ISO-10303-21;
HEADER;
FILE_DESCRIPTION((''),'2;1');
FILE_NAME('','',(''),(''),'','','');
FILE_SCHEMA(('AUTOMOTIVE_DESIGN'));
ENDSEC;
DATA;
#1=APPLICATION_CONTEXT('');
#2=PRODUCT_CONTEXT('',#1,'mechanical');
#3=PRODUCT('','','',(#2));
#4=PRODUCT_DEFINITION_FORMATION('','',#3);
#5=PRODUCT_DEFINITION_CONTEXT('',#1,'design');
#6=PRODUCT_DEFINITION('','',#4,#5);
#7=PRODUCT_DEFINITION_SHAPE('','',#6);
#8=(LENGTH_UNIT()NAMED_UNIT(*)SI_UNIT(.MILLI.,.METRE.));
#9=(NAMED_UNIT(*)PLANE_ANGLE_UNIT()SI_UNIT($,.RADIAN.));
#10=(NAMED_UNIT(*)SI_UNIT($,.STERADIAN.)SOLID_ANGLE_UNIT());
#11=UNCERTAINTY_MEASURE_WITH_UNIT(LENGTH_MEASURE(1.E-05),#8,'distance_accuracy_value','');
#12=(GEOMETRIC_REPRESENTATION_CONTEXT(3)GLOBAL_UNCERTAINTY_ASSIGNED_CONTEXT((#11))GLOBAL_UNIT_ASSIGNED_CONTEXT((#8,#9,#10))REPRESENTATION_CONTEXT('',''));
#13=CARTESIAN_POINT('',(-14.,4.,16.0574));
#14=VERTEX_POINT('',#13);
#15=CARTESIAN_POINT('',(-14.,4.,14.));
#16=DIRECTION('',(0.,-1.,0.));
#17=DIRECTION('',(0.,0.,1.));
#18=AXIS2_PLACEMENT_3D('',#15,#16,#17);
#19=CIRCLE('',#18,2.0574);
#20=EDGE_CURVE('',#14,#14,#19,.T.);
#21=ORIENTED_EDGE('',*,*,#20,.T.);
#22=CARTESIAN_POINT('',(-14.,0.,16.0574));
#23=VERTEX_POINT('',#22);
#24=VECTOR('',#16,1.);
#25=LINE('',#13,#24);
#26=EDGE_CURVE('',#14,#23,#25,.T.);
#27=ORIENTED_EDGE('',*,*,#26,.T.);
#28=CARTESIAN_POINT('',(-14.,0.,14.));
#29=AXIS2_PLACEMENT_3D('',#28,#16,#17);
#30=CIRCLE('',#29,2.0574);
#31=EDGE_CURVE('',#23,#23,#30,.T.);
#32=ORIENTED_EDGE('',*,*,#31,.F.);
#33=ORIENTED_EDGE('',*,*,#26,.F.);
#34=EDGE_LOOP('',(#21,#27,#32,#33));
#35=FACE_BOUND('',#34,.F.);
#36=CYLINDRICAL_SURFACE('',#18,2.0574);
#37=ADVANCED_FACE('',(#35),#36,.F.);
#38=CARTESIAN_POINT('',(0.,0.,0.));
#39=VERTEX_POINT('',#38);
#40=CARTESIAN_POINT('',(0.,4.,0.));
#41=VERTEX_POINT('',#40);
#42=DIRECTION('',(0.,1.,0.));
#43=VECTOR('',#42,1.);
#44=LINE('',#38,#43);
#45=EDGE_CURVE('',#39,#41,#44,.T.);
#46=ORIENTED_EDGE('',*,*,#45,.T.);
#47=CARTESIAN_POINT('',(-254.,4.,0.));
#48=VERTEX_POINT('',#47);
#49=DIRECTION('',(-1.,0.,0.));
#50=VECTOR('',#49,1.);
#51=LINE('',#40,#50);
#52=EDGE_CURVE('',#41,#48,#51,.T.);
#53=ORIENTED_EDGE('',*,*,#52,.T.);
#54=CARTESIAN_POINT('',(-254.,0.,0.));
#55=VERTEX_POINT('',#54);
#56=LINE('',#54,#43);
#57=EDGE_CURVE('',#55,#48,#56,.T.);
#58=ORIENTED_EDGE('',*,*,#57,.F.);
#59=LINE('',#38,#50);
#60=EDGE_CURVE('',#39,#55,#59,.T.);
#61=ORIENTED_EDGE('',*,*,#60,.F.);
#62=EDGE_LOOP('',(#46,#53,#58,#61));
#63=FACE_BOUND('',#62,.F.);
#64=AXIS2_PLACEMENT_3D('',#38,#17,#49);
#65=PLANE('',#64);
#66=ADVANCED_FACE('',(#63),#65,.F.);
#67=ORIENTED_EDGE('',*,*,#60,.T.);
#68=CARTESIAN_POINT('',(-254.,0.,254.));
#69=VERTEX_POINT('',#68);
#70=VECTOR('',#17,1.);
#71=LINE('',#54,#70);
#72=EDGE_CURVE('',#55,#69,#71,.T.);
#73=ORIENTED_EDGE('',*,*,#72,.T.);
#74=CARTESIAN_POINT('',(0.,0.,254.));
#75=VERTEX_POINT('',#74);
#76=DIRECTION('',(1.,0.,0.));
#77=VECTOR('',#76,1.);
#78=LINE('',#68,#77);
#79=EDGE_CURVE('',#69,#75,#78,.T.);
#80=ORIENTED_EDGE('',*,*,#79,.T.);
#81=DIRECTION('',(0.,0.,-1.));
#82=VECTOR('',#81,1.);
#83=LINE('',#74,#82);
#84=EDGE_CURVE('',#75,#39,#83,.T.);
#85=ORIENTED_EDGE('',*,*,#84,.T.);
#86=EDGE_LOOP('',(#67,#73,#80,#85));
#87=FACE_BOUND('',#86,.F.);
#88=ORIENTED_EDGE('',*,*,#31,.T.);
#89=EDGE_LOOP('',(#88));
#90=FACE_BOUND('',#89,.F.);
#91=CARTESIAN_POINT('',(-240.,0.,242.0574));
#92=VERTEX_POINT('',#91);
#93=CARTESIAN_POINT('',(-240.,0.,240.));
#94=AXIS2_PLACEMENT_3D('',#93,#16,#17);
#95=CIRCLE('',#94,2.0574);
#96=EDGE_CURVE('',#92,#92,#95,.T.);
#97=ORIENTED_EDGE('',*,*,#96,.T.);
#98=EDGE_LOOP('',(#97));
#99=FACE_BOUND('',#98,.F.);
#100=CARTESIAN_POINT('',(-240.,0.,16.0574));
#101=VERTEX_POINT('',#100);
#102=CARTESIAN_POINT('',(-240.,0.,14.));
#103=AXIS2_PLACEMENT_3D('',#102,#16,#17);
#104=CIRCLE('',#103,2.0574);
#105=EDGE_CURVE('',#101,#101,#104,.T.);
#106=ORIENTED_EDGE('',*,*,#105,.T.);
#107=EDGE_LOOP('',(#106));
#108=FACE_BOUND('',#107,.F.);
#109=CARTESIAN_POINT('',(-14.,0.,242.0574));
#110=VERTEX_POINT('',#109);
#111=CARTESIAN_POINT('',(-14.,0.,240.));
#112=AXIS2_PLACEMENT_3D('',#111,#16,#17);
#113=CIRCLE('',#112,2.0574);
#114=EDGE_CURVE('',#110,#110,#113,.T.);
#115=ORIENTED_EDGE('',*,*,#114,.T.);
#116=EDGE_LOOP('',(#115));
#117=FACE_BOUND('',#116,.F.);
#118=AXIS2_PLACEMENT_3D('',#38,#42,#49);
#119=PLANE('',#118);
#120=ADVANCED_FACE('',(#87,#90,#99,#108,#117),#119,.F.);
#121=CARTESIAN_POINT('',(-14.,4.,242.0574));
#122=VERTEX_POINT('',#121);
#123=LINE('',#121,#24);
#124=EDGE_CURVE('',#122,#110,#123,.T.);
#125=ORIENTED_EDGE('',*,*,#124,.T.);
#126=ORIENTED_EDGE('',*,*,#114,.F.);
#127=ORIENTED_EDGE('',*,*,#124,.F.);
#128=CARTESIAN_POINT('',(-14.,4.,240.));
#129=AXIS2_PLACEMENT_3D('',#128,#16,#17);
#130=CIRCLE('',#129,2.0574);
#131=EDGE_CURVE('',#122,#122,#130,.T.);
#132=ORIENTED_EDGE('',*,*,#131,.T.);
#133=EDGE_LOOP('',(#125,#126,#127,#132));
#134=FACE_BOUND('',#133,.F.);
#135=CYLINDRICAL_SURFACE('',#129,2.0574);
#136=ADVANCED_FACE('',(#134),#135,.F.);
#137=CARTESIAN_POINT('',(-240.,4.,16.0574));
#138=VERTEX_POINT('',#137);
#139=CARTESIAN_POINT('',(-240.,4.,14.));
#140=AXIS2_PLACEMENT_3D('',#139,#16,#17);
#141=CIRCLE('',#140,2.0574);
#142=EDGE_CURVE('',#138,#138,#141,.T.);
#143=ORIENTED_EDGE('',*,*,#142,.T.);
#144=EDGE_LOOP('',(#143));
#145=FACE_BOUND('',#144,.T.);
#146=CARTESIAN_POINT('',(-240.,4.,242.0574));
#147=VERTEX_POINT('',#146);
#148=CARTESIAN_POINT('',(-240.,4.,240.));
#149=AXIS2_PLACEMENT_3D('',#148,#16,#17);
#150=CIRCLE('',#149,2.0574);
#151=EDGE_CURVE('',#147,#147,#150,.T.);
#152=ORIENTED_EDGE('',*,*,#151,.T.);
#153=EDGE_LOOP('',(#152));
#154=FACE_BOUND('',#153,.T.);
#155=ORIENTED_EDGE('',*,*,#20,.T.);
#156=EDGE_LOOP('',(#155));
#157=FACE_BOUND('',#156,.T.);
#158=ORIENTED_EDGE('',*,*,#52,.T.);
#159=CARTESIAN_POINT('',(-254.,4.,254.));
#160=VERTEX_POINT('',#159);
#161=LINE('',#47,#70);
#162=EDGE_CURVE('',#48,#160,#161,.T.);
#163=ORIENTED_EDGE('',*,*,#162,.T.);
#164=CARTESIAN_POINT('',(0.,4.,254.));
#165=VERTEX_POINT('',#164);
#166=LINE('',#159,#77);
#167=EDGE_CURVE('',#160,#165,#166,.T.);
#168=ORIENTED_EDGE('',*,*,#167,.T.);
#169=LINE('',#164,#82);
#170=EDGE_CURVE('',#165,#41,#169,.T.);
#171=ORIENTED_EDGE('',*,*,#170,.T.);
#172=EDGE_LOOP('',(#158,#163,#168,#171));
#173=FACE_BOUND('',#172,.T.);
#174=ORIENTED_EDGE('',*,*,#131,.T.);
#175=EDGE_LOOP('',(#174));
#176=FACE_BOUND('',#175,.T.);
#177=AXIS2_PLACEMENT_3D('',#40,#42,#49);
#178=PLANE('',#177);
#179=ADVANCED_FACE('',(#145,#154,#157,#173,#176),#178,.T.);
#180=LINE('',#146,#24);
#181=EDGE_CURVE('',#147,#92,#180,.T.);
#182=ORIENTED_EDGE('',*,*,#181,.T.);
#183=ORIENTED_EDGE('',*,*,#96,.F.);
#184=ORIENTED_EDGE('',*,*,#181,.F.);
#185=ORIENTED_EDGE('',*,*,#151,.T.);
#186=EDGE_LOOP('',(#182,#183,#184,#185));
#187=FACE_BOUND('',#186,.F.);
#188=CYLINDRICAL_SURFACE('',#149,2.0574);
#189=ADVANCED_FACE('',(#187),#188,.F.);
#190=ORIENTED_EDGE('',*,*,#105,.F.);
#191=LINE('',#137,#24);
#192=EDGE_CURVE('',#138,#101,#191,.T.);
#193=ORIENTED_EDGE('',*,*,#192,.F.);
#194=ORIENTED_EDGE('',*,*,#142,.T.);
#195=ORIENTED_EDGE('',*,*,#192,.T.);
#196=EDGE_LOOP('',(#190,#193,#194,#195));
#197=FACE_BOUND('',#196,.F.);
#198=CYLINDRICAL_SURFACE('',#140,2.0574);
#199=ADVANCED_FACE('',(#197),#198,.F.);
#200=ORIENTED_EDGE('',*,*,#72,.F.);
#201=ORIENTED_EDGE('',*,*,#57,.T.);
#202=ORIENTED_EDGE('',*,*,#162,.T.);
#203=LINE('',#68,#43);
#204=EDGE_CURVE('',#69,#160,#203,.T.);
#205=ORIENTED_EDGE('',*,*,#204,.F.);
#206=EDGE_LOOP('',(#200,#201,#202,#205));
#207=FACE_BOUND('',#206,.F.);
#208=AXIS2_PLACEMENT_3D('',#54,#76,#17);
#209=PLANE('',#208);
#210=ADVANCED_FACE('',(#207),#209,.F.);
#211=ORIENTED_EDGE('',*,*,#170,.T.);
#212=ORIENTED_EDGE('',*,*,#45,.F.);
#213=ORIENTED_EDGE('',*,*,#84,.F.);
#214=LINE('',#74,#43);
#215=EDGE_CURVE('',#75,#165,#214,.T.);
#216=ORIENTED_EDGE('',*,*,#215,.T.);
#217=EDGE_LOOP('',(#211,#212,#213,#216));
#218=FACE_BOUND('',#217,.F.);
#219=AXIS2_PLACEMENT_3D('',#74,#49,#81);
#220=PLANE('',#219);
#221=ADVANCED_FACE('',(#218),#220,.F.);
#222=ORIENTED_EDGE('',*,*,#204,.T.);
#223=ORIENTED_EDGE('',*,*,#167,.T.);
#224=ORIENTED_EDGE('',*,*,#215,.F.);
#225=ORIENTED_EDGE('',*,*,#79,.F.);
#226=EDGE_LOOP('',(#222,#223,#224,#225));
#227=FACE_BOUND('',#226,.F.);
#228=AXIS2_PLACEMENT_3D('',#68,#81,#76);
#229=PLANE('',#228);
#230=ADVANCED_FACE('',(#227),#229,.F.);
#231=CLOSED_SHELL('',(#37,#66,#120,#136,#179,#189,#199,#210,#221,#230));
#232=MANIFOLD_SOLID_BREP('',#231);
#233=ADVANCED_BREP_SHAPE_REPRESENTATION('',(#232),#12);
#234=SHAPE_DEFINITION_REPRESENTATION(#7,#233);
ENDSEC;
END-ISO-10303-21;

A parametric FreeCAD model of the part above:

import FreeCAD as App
import Part
import Sketcher
Q = App.Units.Quantity

doc = App.newDocument("Part")
body = doc.addObject("PartDesign::Body", "Body")

sketch1 = body.newObject("Sketcher::SketchObject", "Sketch")
sketch1.AttachmentSupport = (doc.getObject("XZ_Plane"), [""])
sketch1.MapMode = "FlatFace"
sketch1.addGeometry(Part.LineSegment(App.Vector(-254, 0, 0), App.Vector(-254, 254, 0)), False)
sketch1.addGeometry(Part.LineSegment(App.Vector(-254, 254, 0), App.Vector(0, 254, 0)), False)
sketch1.addGeometry(Part.LineSegment(App.Vector(0, 254, 0), App.Vector(0, 0, 0)), False)
sketch1.addGeometry(Part.LineSegment(App.Vector(0, 0, 0), App.Vector(-254, 0, 0)), False)
sketch1.addConstraint(Sketcher.Constraint("Coincident", 0, 2, 1, 1))
sketch1.addConstraint(Sketcher.Constraint("Coincident", 1, 2, 2, 1))
sketch1.addConstraint(Sketcher.Constraint("Coincident", 2, 2, 3, 1))
sketch1.addConstraint(Sketcher.Constraint("Coincident", 3, 2, 0, 1))
sketch1.addConstraint(Sketcher.Constraint("Vertical", 0))
sketch1.addConstraint(Sketcher.Constraint("Horizontal", 1))
sketch1.addConstraint(Sketcher.Constraint("Vertical", 2))
sketch1.addConstraint(Sketcher.Constraint("Horizontal", 3))
sketch1.addConstraint(Sketcher.Constraint("Coincident", 2, 2, -1, 1))
sketch1.addConstraint(Sketcher.Constraint("Equal", 3, 0))
sketch1.addConstraint(Sketcher.Constraint("DistanceX", 1, 1, 1, 2, Q("254 mm")))
pad1 = body.newObject("PartDesign::Pad", "Pad")
pad1.Profile = sketch1
pad1.Length = 4
pad1.Reversed = True

sketch2 = body.newObject("Sketcher::SketchObject", "Sketch001")
sketch2.AttachmentSupport = (doc.getObject("XZ_Plane"), [""])
sketch2.MapMode = "FlatFace"
sketch2.AttachmentOffset = App.Placement(App.Vector(0, 0, -4), App.Rotation())
sketch2.addGeometry(Part.Circle(App.Vector(-14, 14, 0), App.Vector(0, 0, 1), 2.0574), False)
sketch2.addGeometry(Part.Circle(App.Vector(-14, 240, 0), App.Vector(0, 0, 1), 2.0574), False)
sketch2.addGeometry(Part.Circle(App.Vector(-240, 14, 0), App.Vector(0, 0, 1), 2.0574), False)
sketch2.addGeometry(Part.Circle(App.Vector(-240, 240, 0), App.Vector(0, 0, 1), 2.0574), False)
sketch2.addConstraint(Sketcher.Constraint("Equal", 0, 1))
sketch2.addConstraint(Sketcher.Constraint("Equal", 1, 2))
sketch2.addConstraint(Sketcher.Constraint("Equal", 2, 3))
sketch2.addConstraint(Sketcher.Constraint("Horizontal", 0, 3, 2, 3))
sketch2.addConstraint(Sketcher.Constraint("Horizontal", 1, 3, 3, 3))
sketch2.addConstraint(Sketcher.Constraint("Vertical", 0, 3, 1, 3))
sketch2.addConstraint(Sketcher.Constraint("Vertical", 2, 3, 3, 3))
sketch2.addConstraint(Sketcher.Constraint("DistanceX", 0, 3, -1, 1, Q("14 mm")))
sketch2.addConstraint(Sketcher.Constraint("DistanceY", -1, 1, 0, 3, Q("14 mm")))
sketch2.addConstraint(Sketcher.Constraint("DistanceY", -1, 1, 1, 3, Q("240 mm")))
sketch2.addConstraint(Sketcher.Constraint("DistanceX", 2, 3, -1, 1, Q("240 mm")))
sketch2.addConstraint(Sketcher.Constraint("Diameter", 0, Q("4.1148 mm")))
doc.recompute()
hole = body.newObject("PartDesign::Hole", "Hole")
hole.Profile = sketch2
hole.ThreadType = "None"
hole.Diameter = 4.1148
hole.DepthType = "Dimension"
hole.Depth = 12.3
hole.DrillPoint = "Flat"
hole.Reversed = True

doc.recompute()
